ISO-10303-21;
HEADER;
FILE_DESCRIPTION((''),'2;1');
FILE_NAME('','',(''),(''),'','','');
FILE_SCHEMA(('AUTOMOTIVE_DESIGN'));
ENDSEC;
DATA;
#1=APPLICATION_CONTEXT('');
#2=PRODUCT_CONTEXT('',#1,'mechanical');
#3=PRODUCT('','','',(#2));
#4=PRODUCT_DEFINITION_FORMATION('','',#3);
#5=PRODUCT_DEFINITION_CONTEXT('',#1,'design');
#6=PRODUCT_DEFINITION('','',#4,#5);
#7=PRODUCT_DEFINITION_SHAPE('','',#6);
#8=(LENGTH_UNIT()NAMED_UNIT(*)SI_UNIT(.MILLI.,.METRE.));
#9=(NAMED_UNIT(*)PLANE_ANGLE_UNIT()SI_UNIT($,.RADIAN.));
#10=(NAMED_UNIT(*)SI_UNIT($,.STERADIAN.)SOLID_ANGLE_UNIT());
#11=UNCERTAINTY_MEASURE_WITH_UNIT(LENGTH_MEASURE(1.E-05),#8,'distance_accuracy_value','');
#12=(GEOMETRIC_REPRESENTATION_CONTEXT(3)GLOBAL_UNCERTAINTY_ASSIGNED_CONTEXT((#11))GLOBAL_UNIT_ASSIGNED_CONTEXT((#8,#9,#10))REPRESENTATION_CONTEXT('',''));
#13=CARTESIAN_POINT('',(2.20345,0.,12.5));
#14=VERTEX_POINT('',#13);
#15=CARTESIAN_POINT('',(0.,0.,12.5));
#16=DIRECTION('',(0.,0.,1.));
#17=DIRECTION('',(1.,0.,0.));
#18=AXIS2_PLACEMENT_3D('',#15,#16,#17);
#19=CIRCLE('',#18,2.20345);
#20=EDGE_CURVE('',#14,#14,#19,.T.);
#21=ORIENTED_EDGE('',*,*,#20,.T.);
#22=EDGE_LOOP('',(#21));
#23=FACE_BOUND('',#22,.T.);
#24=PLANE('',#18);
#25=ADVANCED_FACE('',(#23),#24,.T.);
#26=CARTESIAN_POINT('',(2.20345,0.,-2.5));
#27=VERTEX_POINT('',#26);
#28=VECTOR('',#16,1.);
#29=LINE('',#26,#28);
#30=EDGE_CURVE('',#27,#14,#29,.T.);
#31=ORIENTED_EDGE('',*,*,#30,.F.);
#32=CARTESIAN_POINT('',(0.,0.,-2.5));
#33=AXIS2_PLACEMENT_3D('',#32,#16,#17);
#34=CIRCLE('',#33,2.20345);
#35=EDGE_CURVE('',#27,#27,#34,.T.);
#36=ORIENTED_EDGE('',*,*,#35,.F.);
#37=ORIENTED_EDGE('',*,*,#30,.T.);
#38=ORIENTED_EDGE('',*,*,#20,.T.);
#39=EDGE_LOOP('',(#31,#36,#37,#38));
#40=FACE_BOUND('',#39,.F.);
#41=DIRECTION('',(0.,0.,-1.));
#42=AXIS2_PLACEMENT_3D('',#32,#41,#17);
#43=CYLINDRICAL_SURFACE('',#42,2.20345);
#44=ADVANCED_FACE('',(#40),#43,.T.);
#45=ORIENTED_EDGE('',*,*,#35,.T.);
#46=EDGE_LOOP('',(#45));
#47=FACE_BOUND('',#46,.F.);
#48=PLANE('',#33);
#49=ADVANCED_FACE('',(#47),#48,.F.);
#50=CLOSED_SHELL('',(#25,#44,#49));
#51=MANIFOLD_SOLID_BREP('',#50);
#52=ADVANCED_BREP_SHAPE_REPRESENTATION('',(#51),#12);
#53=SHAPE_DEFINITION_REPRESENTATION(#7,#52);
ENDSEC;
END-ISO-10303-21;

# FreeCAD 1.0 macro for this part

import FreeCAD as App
import Part
import Sketcher
from FreeCAD import Vector
Q = App.Units.Quantity

doc = App.newDocument("Part")
body = doc.addObject("PartDesign::Body", "Body")

# Sketch on XY plane
sketch1 = body.newObject("Sketcher::SketchObject", "Sketch")
sketch1.AttachmentSupport = (doc.getObject("XY_Plane"), [""])
sketch1.MapMode = "FlatFace"
sketch1.AttachmentOffset = App.Placement(Vector(0, 0, -2.5), App.Rotation())
sketch1.addGeometry(Part.Circle(Vector(0, 0, 0), Vector(0, 0, 1), 2.2), False)
sketch1.addConstraint([
    Sketcher.Constraint("Coincident", 0, 3, -1, 1),
    Sketcher.Constraint("Diameter", 0, Q("4.4069 mm")),
])
pad1 = body.newObject("PartDesign::Pad", "Pad")
pad1.Profile = sketch1
pad1.Length = 15

doc.recompute()
